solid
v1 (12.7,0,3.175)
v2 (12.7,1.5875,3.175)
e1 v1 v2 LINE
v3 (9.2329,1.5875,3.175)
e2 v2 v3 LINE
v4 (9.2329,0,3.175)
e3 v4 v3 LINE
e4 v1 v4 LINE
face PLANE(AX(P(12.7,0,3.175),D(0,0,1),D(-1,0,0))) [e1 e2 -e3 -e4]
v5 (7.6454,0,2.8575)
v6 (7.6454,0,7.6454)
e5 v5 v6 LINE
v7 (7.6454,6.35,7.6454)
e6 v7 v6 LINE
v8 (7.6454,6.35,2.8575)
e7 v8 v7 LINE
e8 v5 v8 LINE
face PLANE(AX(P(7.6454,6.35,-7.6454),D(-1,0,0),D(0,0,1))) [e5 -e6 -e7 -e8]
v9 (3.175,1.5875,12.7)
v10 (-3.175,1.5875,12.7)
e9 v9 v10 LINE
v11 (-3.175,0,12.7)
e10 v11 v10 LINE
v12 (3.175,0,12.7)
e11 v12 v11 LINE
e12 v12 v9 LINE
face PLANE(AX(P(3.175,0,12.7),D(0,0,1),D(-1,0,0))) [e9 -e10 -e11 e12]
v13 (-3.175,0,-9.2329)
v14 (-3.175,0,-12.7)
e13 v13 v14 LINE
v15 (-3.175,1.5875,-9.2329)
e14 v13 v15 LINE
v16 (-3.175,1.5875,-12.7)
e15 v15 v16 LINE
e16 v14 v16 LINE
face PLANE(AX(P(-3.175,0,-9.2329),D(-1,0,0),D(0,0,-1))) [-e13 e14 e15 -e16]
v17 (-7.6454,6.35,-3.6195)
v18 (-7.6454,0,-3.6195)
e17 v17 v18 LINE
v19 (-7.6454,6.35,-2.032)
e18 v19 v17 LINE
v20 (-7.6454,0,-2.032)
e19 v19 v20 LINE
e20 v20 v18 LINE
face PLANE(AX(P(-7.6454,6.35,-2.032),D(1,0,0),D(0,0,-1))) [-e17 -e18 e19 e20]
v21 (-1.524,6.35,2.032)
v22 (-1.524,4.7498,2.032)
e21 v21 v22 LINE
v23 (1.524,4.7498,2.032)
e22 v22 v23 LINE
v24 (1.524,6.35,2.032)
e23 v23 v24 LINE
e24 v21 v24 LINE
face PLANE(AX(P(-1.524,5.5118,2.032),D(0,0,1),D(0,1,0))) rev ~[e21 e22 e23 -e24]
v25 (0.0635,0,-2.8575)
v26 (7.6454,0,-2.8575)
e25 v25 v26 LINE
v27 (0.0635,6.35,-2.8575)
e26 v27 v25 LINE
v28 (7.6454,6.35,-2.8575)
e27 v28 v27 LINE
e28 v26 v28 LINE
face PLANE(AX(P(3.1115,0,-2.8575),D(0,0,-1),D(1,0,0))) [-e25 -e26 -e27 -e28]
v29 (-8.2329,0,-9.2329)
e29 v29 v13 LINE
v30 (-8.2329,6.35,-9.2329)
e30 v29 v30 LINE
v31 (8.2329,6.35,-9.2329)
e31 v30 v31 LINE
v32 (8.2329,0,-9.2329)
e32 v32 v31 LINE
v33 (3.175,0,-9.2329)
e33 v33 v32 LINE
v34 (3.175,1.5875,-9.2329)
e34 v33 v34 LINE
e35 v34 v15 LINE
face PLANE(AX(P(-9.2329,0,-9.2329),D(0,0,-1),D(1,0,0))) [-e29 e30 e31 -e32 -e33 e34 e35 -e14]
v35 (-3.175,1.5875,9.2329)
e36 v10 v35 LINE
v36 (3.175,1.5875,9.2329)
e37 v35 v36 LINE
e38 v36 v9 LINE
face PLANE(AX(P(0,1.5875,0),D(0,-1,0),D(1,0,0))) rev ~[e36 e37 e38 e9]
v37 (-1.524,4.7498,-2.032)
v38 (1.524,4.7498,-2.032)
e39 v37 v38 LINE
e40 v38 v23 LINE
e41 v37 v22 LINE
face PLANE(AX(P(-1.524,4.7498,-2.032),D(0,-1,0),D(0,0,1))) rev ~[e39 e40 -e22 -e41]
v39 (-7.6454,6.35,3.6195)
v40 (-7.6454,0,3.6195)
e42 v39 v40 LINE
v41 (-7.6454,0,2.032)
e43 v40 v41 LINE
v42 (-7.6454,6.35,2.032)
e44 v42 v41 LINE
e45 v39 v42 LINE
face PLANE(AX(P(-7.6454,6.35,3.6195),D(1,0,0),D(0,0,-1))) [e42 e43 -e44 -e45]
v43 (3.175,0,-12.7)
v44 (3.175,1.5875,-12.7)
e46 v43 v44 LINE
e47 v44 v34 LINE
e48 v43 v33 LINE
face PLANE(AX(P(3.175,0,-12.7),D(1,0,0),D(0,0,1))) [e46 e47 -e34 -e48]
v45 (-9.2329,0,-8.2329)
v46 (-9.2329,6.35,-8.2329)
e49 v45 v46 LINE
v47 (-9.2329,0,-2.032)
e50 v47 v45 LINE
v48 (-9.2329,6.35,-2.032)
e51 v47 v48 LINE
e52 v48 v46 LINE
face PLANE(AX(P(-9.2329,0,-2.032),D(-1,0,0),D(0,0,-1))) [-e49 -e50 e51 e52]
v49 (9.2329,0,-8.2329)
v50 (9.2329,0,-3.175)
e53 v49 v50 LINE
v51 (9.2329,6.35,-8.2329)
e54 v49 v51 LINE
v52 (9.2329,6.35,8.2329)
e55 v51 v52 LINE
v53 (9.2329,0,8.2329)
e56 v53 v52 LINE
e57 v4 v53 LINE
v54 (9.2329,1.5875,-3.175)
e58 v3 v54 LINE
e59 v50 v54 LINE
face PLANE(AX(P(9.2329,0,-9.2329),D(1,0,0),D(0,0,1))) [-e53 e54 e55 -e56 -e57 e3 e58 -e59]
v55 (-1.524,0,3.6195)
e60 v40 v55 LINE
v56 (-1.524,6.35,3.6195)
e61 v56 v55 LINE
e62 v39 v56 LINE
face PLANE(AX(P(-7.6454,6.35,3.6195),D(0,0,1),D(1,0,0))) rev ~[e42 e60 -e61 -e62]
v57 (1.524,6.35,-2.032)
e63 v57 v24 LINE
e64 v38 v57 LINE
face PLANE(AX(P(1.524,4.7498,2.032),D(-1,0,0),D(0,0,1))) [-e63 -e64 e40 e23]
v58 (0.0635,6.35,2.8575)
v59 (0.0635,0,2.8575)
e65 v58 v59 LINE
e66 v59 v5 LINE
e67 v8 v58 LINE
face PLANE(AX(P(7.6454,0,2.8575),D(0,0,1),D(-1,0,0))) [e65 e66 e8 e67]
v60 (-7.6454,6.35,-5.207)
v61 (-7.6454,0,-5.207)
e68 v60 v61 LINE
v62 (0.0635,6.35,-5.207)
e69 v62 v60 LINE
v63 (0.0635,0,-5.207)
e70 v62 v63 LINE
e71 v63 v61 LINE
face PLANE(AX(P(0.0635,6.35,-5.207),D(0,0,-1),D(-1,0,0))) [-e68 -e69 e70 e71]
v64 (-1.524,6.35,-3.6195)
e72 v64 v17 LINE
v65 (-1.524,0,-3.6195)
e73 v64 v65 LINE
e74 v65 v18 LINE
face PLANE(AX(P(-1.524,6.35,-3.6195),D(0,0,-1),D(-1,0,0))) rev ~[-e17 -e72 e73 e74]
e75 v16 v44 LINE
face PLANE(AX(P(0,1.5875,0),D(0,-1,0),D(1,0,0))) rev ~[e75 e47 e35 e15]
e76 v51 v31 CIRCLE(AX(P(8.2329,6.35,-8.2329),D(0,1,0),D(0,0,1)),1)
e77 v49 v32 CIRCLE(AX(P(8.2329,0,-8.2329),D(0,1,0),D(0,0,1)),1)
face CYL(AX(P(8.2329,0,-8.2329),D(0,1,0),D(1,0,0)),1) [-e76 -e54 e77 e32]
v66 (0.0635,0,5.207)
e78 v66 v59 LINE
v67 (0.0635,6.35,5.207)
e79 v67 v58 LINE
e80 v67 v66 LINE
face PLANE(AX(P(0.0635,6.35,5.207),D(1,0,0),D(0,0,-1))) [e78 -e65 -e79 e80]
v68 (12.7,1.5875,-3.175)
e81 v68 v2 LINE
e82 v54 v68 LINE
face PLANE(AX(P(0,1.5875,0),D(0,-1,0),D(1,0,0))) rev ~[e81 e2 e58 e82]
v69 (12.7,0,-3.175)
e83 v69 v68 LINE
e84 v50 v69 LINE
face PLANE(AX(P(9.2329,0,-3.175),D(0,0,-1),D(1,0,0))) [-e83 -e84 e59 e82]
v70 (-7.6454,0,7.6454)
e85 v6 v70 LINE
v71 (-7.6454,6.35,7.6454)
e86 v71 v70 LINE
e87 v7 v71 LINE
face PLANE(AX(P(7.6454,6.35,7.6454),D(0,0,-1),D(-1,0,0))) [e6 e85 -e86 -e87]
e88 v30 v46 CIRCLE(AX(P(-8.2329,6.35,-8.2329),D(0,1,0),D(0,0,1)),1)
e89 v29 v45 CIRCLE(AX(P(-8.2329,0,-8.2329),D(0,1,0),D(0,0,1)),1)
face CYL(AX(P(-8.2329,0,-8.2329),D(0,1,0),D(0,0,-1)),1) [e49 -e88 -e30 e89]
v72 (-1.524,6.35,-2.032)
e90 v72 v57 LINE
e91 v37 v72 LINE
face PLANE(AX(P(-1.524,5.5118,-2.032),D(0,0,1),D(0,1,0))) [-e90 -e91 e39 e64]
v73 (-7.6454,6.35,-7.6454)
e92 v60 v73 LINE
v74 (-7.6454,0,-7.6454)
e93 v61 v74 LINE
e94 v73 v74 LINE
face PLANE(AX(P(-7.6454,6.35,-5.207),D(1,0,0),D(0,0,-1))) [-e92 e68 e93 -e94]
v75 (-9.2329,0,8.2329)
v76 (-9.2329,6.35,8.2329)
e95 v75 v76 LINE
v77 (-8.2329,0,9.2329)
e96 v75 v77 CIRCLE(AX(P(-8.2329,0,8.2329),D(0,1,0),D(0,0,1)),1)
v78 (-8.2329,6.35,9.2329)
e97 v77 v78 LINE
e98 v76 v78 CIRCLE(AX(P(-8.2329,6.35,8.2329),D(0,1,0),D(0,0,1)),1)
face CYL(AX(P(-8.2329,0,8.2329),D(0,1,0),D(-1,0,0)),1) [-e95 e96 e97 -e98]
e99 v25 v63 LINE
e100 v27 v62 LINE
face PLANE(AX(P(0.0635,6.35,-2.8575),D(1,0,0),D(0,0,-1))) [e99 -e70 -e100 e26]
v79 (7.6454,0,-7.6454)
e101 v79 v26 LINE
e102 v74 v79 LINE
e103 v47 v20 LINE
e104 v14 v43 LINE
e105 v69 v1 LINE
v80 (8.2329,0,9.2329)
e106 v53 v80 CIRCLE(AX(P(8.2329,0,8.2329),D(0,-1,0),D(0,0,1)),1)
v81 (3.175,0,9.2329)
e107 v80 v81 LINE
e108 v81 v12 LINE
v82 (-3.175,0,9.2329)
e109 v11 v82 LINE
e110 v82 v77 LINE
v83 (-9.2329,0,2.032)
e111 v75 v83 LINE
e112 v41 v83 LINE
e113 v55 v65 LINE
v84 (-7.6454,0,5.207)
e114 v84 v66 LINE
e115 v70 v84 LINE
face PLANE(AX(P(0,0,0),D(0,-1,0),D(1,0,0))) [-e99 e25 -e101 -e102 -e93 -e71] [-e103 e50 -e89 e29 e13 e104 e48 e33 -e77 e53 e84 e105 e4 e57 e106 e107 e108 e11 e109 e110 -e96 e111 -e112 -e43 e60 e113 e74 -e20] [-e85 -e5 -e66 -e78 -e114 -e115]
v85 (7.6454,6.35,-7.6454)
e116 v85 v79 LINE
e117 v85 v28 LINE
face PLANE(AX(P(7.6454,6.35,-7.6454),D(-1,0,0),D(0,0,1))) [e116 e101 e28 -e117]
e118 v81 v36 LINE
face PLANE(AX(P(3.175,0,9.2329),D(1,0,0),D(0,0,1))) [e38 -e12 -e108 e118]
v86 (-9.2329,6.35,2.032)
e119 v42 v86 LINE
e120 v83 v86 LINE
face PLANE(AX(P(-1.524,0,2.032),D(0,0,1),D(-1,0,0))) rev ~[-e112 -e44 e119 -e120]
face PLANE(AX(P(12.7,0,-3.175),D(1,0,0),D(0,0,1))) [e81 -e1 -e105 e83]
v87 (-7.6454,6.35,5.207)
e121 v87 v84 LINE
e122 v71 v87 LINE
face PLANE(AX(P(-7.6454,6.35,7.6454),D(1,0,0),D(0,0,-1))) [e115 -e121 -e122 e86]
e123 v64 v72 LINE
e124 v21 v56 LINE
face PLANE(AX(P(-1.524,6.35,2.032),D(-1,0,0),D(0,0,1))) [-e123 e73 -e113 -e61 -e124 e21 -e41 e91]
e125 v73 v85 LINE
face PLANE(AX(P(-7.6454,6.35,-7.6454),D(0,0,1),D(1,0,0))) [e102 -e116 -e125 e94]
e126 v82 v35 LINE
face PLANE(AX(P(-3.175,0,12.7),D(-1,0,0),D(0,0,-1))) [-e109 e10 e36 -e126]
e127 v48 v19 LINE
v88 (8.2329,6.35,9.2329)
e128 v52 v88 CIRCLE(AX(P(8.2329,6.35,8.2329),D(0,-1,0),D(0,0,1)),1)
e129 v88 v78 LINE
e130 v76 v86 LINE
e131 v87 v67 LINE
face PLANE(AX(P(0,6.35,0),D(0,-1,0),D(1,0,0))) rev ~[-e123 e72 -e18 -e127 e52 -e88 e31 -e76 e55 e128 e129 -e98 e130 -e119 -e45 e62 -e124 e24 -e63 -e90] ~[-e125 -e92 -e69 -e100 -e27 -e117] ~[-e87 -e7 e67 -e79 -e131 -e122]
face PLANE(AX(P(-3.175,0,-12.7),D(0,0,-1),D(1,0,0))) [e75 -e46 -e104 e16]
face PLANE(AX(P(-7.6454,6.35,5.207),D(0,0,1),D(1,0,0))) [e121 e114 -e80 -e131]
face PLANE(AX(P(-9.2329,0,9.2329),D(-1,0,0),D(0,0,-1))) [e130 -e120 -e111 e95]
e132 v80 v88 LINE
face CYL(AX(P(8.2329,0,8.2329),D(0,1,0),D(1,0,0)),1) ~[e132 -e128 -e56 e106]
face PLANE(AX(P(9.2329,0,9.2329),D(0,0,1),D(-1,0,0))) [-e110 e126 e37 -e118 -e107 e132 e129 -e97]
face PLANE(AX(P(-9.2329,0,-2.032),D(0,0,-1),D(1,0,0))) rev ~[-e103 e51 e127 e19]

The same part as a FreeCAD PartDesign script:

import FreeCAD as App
import Part
import Sketcher
Q = App.Units.Quantity


def edges_at(feature, points):
    """Names of the edges that pass closest to the given points."""
    edges = feature.Shape.Edges
    near = lambda p: min(range(len(edges)), key=lambda i: edges[i].distToShape(Part.Vertex(*p))[0])
    return sorted({f"Edge{near(p) + 1}" for p in points})

doc = App.newDocument("Part")
body = doc.addObject("PartDesign::Body", "Body")

# Sketch on XZ plane
sketch1 = doc.addObject("Sketcher::SketchObject", "Sketch")
body.addObject(sketch1)
sketch1.AttachmentSupport = (doc.XZ_Plane, [""])
sketch1.MapMode = "FlatFace"
sketch1.addGeometry(Part.LineSegment(App.Vector(-9.2, 9.2, 0), App.Vector(9.2, 9.2, 0)), False)
sketch1.addGeometry(Part.LineSegment(App.Vector(9.2, 9.2, 0), App.Vector(9.2, -9.2, 0)), False)
sketch1.addGeometry(Part.LineSegment(App.Vector(9.2, -9.2, 0), App.Vector(-9.2, -9.2, 0)), False)
sketch1.addGeometry(Part.LineSegment(App.Vector(-9.2, -9.2, 0), App.Vector(-9.2, -2, 0)), False)
sketch1.addGeometry(Part.LineSegment(App.Vector(-9.2, -2, 0), App.Vector(-1.5, -2, 0)), False)
sketch1.addGeometry(Part.LineSegment(App.Vector(-1.5, -2, 0), App.Vector(-1.5, 2, 0)), False)
sketch1.addGeometry(Part.LineSegment(App.Vector(-1.5, 2, 0), App.Vector(-9.2, 2, 0)), False)
sketch1.addGeometry(Part.LineSegment(App.Vector(-9.2, 2, 0), App.Vector(-9.2, 9.2, 0)), False)
sketch1.addConstraint(Sketcher.Constraint("Coincident", 0, 2, 1, 1))
sketch1.addConstraint(Sketcher.Constraint("Coincident", 1, 2, 2, 1))
sketch1.addConstraint(Sketcher.Constraint("Coincident", 2, 2, 3, 1))
sketch1.addConstraint(Sketcher.Constraint("Coincident", 3, 2, 4, 1))
sketch1.addConstraint(Sketcher.Constraint("Coincident", 4, 2, 5, 1))
sketch1.addConstraint(Sketcher.Constraint("Coincident", 5, 2, 6, 1))
sketch1.addConstraint(Sketcher.Constraint("Coincident", 6, 2, 7, 1))
sketch1.addConstraint(Sketcher.Constraint("Coincident", 7, 2, 0, 1))
sketch1.addConstraint(Sketcher.Constraint("Horizontal", 0))
sketch1.addConstraint(Sketcher.Constraint("Vertical", 1))
sketch1.addConstraint(Sketcher.Constraint("Horizontal", 2))
sketch1.addConstraint(Sketcher.Constraint("Vertical", 3))
sketch1.addConstraint(Sketcher.Constraint("Horizontal", 4))
sketch1.addConstraint(Sketcher.Constraint("Vertical", 5))
sketch1.addConstraint(Sketcher.Constraint("Horizontal", 6))
sketch1.addConstraint(Sketcher.Constraint("Vertical", 7))
sketch1.addConstraint(Sketcher.Constraint("Symmetric", 0, 2, 2, 2, -1, 1))
sketch1.addConstraint(Sketcher.Constraint("Symmetric", 3, 2, 6, 2, -1))
sketch1.addConstraint(Sketcher.Constraint("Equal", 2, 1))
sketch1.addConstraint(Sketcher.Constraint("DistanceY", 5, 1, 5, 2, Q("0.16 in")))
sketch1.addConstraint(Sketcher.Constraint("DistanceX", 0, 1, 0, 2, Q("0.727 in")))
sketch1.addConstraint(Sketcher.Constraint("DistanceX", 4, 2, -1, 1, Q("0.06 in")))
pad1 = doc.addObject("PartDesign::Pad", "Pad")
body.addObject(pad1)
pad1.Profile = sketch1
pad1.Length = Q("0.25 in")
pad1.Reversed = True

# Sketch on YZ plane
sketch2 = doc.addObject("Sketcher::SketchObject", "Sketch001")
body.addObject(sketch2)
sketch2.AttachmentSupport = (doc.YZ_Plane, [""])
sketch2.MapMode = "FlatFace"
sketch2.AttachmentOffset = App.Placement(App.Vector(0, 0, -0.06 * 25.4), App.Rotation())
sketch2.addGeometry(Part.LineSegment(App.Vector(5.5, -2, 0), App.Vector(4.7, -2, 0)), False)
sketch2.addGeometry(Part.LineSegment(App.Vector(4.7, -2, 0), App.Vector(4.7, 2, 0)), False)
sketch2.addGeometry(Part.LineSegment(App.Vector(4.7, 2, 0), App.Vector(5.5, 2, 0)), False)
sketch2.addGeometry(Part.LineSegment(App.Vector(5.5, 2, 0), App.Vector(6.3, 1.3, 0)), False)
sketch2.addGeometry(Part.LineSegment(App.Vector(6.3, 1.3, 0), App.Vector(6.3, -1.3, 0)), False)
sketch2.addGeometry(Part.LineSegment(App.Vector(6.3, -1.3, 0), App.Vector(5.5, -2, 0)), False)
sketch2.addConstraint(Sketcher.Constraint("Coincident", 0, 2, 1, 1))
sketch2.addConstraint(Sketcher.Constraint("Coincident", 1, 2, 2, 1))
sketch2.addConstraint(Sketcher.Constraint("Coincident", 2, 2, 3, 1))
sketch2.addConstraint(Sketcher.Constraint("Coincident", 3, 2, 4, 1))
sketch2.addConstraint(Sketcher.Constraint("Coincident", 4, 2, 5, 1))
sketch2.addConstraint(Sketcher.Constraint("Coincident", 5, 2, 0, 1))
sketch2.addConstraint(Sketcher.Constraint("Horizontal", 0))
sketch2.addConstraint(Sketcher.Constraint("Vertical", 1))
sketch2.addConstraint(Sketcher.Constraint("Horizontal", 2))
sketch2.addConstraint(Sketcher.Constraint("Vertical", 4))
sketch2.addConstraint(Sketcher.Constraint("Symmetric", 2, 2, 5, 2, -1))
sketch2.addConstraint(Sketcher.Constraint("Equal", 3, 5))
sketch2.addConstraint(Sketcher.Constraint("DistanceY", 4, 2, 4, 1, Q("0.1 in")))
sketch2.addConstraint(Sketcher.Constraint("DistanceX", 0, 2, 0, 1, Q("0.03 in")))
sketch2.addConstraint(Sketcher.Constraint("DistanceY", 3, 2, 2, 2, Q("0.03 in")))
sketch2.addConstraint(Sketcher.Constraint("DistanceX", 1, 2, 3, 2, Q("0.063 in")))
sketch2.addConstraint(Sketcher.Constraint("DistanceX", -1, 1, 3, 2, Q("0.25 in")))
pocket1 = doc.addObject("PartDesign::Pocket", "Pocket")
body.addObject(pocket1)
pocket1.Profile = sketch2
pocket1.Length = Q("0.12 in")
pocket1.Reversed = True

# Sketch on XZ plane
sketch3 = doc.addObject("Sketcher::SketchObject", "Sketch002")
body.addObject(sketch3)
sketch3.AttachmentSupport = (doc.XZ_Plane, [""])
sketch3.MapMode = "FlatFace"
sketch3.AttachmentOffset = App.Placement(App.Vector(0, 0, -0.25 * 25.4), App.Rotation())
sketch3.addGeometry(Part.LineSegment(App.Vector(-1.5, 3.6, 0), App.Vector(-1.5, 2, 0)), False)
sketch3.addGeometry(Part.LineSegment(App.Vector(-1.5, 2, 0), App.Vector(-7.6, 2, 0)), False)
sketch3.addGeometry(Part.LineSegment(App.Vector(-7.6, 2, 0), App.Vector(-7.6, 3.6, 0)), False)
sketch3.addGeometry(Part.LineSegment(App.Vector(-7.6, 3.6, 0), App.Vector(-1.5, 3.6, 0)), False)
sketch3.addGeometry(Part.LineSegment(App.Vector(-7.6, -2, 0), App.Vector(-1.5, -2, 0)), False)
sketch3.addGeometry(Part.LineSegment(App.Vector(-1.5, -2, 0), App.Vector(-1.5, -3.6, 0)), False)
sketch3.addGeometry(Part.LineSegment(App.Vector(-1.5, -3.6, 0), App.Vector(-7.6, -3.6, 0)), False)
sketch3.addGeometry(Part.LineSegment(App.Vector(-7.6, -3.6, 0), App.Vector(-7.6, -2, 0)), False)
sketch3.addConstraint(Sketcher.Constraint("Coincident", 0, 2, 1, 1))
sketch3.addConstraint(Sketcher.Constraint("Coincident", 1, 2, 2, 1))
sketch3.addConstraint(Sketcher.Constraint("Coincident", 2, 2, 3, 1))
sketch3.addConstraint(Sketcher.Constraint("Coincident", 3, 2, 0, 1))
sketch3.addConstraint(Sketcher.Constraint("Coincident", 4, 2, 5, 1))
sketch3.addConstraint(Sketcher.Constraint("Coincident", 5, 2, 6, 1))
sketch3.addConstraint(Sketcher.Constraint("Coincident", 6, 2, 7, 1))
sketch3.addConstraint(Sketcher.Constraint("Coincident", 7, 2, 4, 1))
sketch3.addConstraint(Sketcher.Constraint("Vertical", 0))
sketch3.addConstraint(Sketcher.Constraint("Horizontal", 1))
sketch3.addConstraint(Sketcher.Constraint("Vertical", 2))
sketch3.addConstraint(Sketcher.Constraint("Horizontal", 3))
sketch3.addConstraint(Sketcher.Constraint("Horizontal", 4))
sketch3.addConstraint(Sketcher.Constraint("Vertical", 5))
sketch3.addConstraint(Sketcher.Constraint("Horizontal", 6))
sketch3.addConstraint(Sketcher.Constraint("Vertical", 7))
sketch3.addConstraint(Sketcher.Constraint("Symmetric", 0, 2, 4, 2, -1))
sketch3.addConstraint(Sketcher.Constraint("Symmetric", 2, 2, 6, 2, -1))
sketch3.addConstraint(Sketcher.Constraint("DistanceY", 0, 2, 0, 1, Q("0.0625 in")))
sketch3.addConstraint(Sketcher.Constraint("DistanceX", 1, 2, 1, 1, Q("0.241 in")))
sketch3.addConstraint(Sketcher.Constraint("DistanceX", 0, 2, -1, 1, Q("0.06 in")))
sketch3.addConstraint(Sketcher.Constraint("DistanceY", -1, 1, 0, 2, Q("0.08 in")))
pocket2 = doc.addObject("PartDesign::Pocket", "Pocket001")
body.addObject(pocket2)
pocket2.Profile = sketch3
pocket2.Type = "ThroughAll"
pocket2.Reversed = True

# Sketch on XZ plane
sketch4 = doc.addObject("Sketcher::SketchObject", "Sketch003")
body.addObject(sketch4)
sketch4.AttachmentSupport = (doc.XZ_Plane, [""])
sketch4.MapMode = "FlatFace"
sketch4.AttachmentOffset = App.Placement(App.Vector(0, 0, -0.25 * 25.4), App.Rotation())
sketch4.addGeometry(Part.LineSegment(App.Vector(7.6, -7.6, 0), App.Vector(-7.6, -7.6, 0)), False)
sketch4.addGeometry(Part.LineSegment(App.Vector(-7.6, -7.6, 0), App.Vector(-7.6, -5.2, 0)), False)
sketch4.addGeometry(Part.LineSegment(App.Vector(-7.6, -5.2, 0), App.Vector(0.1, -5.2, 0)), False)
sketch4.addGeometry(Part.LineSegment(App.Vector(0.1, -5.2, 0), App.Vector(0.1, -2.9, 0)), False)
sketch4.addGeometry(Part.LineSegment(App.Vector(0.1, -2.9, 0), App.Vector(3.1, -2.9, 0)), False)
sketch4.addGeometry(Part.LineSegment(App.Vector(3.1, -2.9, 0), App.Vector(3.1, 2.9, 0)), False)
sketch4.addGeometry(Part.LineSegment(App.Vector(3.1, 2.9, 0), App.Vector(0.1, 2.9, 0)), False)
sketch4.addGeometry(Part.LineSegment(App.Vector(0.1, 2.9, 0), App.Vector(0.1, 5.2, 0)), False)
sketch4.addGeometry(Part.LineSegment(App.Vector(0.1, 5.2, 0), App.Vector(-7.6, 5.2, 0)), False)
sketch4.addGeometry(Part.LineSegment(App.Vector(-7.6, 5.2, 0), App.Vector(-7.6, 7.6, 0)), False)
sketch4.addGeometry(Part.LineSegment(App.Vector(-7.6, 7.6, 0), App.Vector(7.6, 7.6, 0)), False)
sketch4.addGeometry(Part.LineSegment(App.Vector(7.6, 7.6, 0), App.Vector(7.6, -7.6, 0)), False)
sketch4.addConstraint(Sketcher.Constraint("Coincident", 0, 2, 1, 1))
sketch4.addConstraint(Sketcher.Constraint("Coincident", 1, 2, 2, 1))
sketch4.addConstraint(Sketcher.Constraint("Coincident", 2, 2, 3, 1))
sketch4.addConstraint(Sketcher.Constraint("Coincident", 3, 2, 4, 1))
sketch4.addConstraint(Sketcher.Constraint("Coincident", 4, 2, 5, 1))
sketch4.addConstraint(Sketcher.Constraint("Coincident", 5, 2, 6, 1))
sketch4.addConstraint(Sketcher.Constraint("Coincident", 6, 2, 7, 1))
sketch4.addConstraint(Sketcher.Constraint("Coincident", 7, 2, 8, 1))
sketch4.addConstraint(Sketcher.Constraint("Coincident", 8, 2, 9, 1))
sketch4.addConstraint(Sketcher.Constraint("Coincident", 9, 2, 10, 1))
sketch4.addConstraint(Sketcher.Constraint("Coincident", 10, 2, 11, 1))
sketch4.addConstraint(Sketcher.Constraint("Coincident", 11, 2, 0, 1))
sketch4.addConstraint(Sketcher.Constraint("Horizontal", 0))
sketch4.addConstraint(Sketcher.Constraint("Vertical", 1))
sketch4.addConstraint(Sketcher.Constraint("Horizontal", 2))
sketch4.addConstraint(Sketcher.Constraint("Vertical", 3))
sketch4.addConstraint(Sketcher.Constraint("Horizontal", 4))
sketch4.addConstraint(Sketcher.Constraint("Vertical", 5))
sketch4.addConstraint(Sketcher.Constraint("Horizontal", 6))
sketch4.addConstraint(Sketcher.Constraint("Vertical", 7))
sketch4.addConstraint(Sketcher.Constraint("Horizontal", 8))
sketch4.addConstraint(Sketcher.Constraint("Vertical", 9))
sketch4.addConstraint(Sketcher.Constraint("Horizontal", 10))
sketch4.addConstraint(Sketcher.Constraint("Vertical", 11))
sketch4.addConstraint(Sketcher.Constraint("Symmetric", 0, 2, 10, 2, -1, 1))
sketch4.addConstraint(Sketcher.Constraint("Symmetric", 3, 2, 6, 2, -1))
sketch4.addConstraint(Sketcher.Constraint("Symmetric", 1, 2, 8, 2, -1))
sketch4.addConstraint(Sketcher.Constraint("Equal", 10, 11))
sketch4.addConstraint(Sketcher.Constraint("DistanceX", 4, 1, 4, 2, Q("0.12 in")))
sketch4.addConstraint(Sketcher.Constraint("DistanceX", 0, 2, 0, 1, Q("0.602 in")))
sketch4.addConstraint(Sketcher.Constraint("DistanceY", 1, 1, 1, 2, Q("0.096 in")))
sketch4.addConstraint(Sketcher.Constraint("DistanceY", 5, 1, 5, 2, Q("0.225 in")))
sketch4.addConstraint(Sketcher.Constraint("DistanceX", 2, 1, 2, 2, Q("0.3035 in")))
pocket3 = doc.addObject("PartDesign::Pocket", "Pocket002")
body.addObject(pocket3)
pocket3.Profile = sketch4
pocket3.Type = "ThroughAll"
pocket3.Reversed = True

# Sketch on XZ plane
sketch5 = doc.addObject("Sketcher::SketchObject", "Sketch004")
body.addObject(sketch5)
sketch5.AttachmentSupport = (doc.XZ_Plane, [""])
sketch5.MapMode = "FlatFace"
sketch5.addGeometry(Part.LineSegment(App.Vector(-3.2, -9.2, 0), App.Vector(-3.2, -12.7, 0)), False)
sketch5.addGeometry(Part.LineSegment(App.Vector(-3.2, -12.7, 0), App.Vector(3.2, -12.7, 0)), False)
sketch5.addGeometry(Part.LineSegment(App.Vector(3.2, -12.7, 0), App.Vector(3.2, -9.2, 0)), False)
sketch5.addGeometry(Part.LineSegment(App.Vector(3.2, -9.2, 0), App.Vector(-3.2, -9.2, 0)), False)
sketch5.addGeometry(Part.LineSegment(App.Vector(9.2, 3.2, 0), App.Vector(9.2, -3.2, 0)), False)
sketch5.addGeometry(Part.LineSegment(App.Vector(9.2, -3.2, 0), App.Vector(12.7, -3.2, 0)), False)
sketch5.addGeometry(Part.LineSegment(App.Vector(12.7, -3.2, 0), App.Vector(12.7, 3.2, 0)), False)
sketch5.addGeometry(Part.LineSegment(App.Vector(12.7, 3.2, 0), App.Vector(9.2, 3.2, 0)), False)
sketch5.addGeometry(Part.LineSegment(App.Vector(-3.2, 9.2, 0), App.Vector(3.2, 9.2, 0)), False)
sketch5.addGeometry(Part.LineSegment(App.Vector(3.2, 9.2, 0), App.Vector(3.2, 12.7, 0)), False)
sketch5.addGeometry(Part.LineSegment(App.Vector(3.2, 12.7, 0), App.Vector(-3.2, 12.7, 0)), False)
sketch5.addGeometry(Part.LineSegment(App.Vector(-3.2, 12.7, 0), App.Vector(-3.2, 9.2, 0)), False)
sketch5.addConstraint(Sketcher.Constraint("Coincident", 0, 2, 1, 1))
sketch5.addConstraint(Sketcher.Constraint("Coincident", 1, 2, 2, 1))
sketch5.addConstraint(Sketcher.Constraint("Coincident", 2, 2, 3, 1))
sketch5.addConstraint(Sketcher.Constraint("Coincident", 3, 2, 0, 1))
sketch5.addConstraint(Sketcher.Constraint("Coincident", 4, 2, 5, 1))
sketch5.addConstraint(Sketcher.Constraint("Coincident", 5, 2, 6, 1))
sketch5.addConstraint(Sketcher.Constraint("Coincident", 6, 2, 7, 1))
sketch5.addConstraint(Sketcher.Constraint("Coincident", 7, 2, 4, 1))
sketch5.addConstraint(Sketcher.Constraint("Coincident", 8, 2, 9, 1))
sketch5.addConstraint(Sketcher.Constraint("Coincident", 9, 2, 10, 1))
sketch5.addConstraint(Sketcher.Constraint("Coincident", 10, 2, 11, 1))
sketch5.addConstraint(Sketcher.Constraint("Coincident", 11, 2, 8, 1))
sketch5.addConstraint(Sketcher.Constraint("Vertical", 0))
sketch5.addConstraint(Sketcher.Constraint("Horizontal", 1))
sketch5.addConstraint(Sketcher.Constraint("Vertical", 2))
sketch5.addConstraint(Sketcher.Constraint("Horizontal", 3))
sketch5.addConstraint(Sketcher.Constraint("Vertical", 4))
sketch5.addConstraint(Sketcher.Constraint("Horizontal", 5))
sketch5.addConstraint(Sketcher.Constraint("Vertical", 6))
sketch5.addConstraint(Sketcher.Constraint("Horizontal", 7))
sketch5.addConstraint(Sketcher.Constraint("Horizontal", 8))
sketch5.addConstraint(Sketcher.Constraint("Vertical", 9))
sketch5.addConstraint(Sketcher.Constraint("Horizontal", 10))
sketch5.addConstraint(Sketcher.Constraint("Vertical", 11))
sketch5.addConstraint(Sketcher.Constraint("Symmetric", 3, 2, 8, 2, -1, 1))
sketch5.addConstraint(Sketcher.Constraint("Symmetric", 1, 2, 10, 2, -1, 1))
sketch5.addConstraint(Sketcher.Constraint("Vertical", 2, 2, 8, 2))
sketch5.addConstraint(Sketcher.Constraint("Equal", 7, 0))
sketch5.addConstraint(Sketcher.Constraint("Equal", 10, 4))
sketch5.addConstraint(Sketcher.Constraint("DistanceX", 1, 1, 1, 2, Q("0.25 in")))
sketch5.addConstraint(Sketcher.Constraint("DistanceY", 0, 2, -1, 1, Q("0.5 in")))
sketch5.addConstraint(Sketcher.Constraint("DistanceX", -1, 1, 5, 2, Q("0.5 in")))
sketch5.addConstraint(Sketcher.Constraint("DistanceX", 5, 1, 5, 2, Q("0.1365 in")))
sketch5.addConstraint(Sketcher.Constraint("DistanceY", 4, 2, -1, 1, Q("0.125 in")))
pad2 = doc.addObject("PartDesign::Pad", "Pad001")
body.addObject(pad2)
pad2.Profile = sketch5
pad2.Length = Q("0.0625 in")
pad2.Reversed = True

# Sketch on XZ plane
sketch6 = doc.addObject("Sketcher::SketchObject", "Sketch005")
body.addObject(sketch6)
sketch6.AttachmentSupport = (doc.XZ_Plane, [""])
sketch6.MapMode = "FlatFace"
sketch6.addGeometry(Part.LineSegment(App.Vector(3.1, 2.9, 0), App.Vector(3.1, -2.9, 0)), False)
sketch6.addGeometry(Part.LineSegment(App.Vector(3.1, -2.9, 0), App.Vector(7.6, -2.9, 0)), False)
sketch6.addGeometry(Part.LineSegment(App.Vector(7.6, -2.9, 0), App.Vector(7.6, 2.9, 0)), False)
sketch6.addGeometry(Part.LineSegment(App.Vector(7.6, 2.9, 0), App.Vector(3.1, 2.9, 0)), False)
sketch6.addConstraint(Sketcher.Constraint("Coincident", 0, 2, 1, 1))
sketch6.addConstraint(Sketcher.Constraint("Coincident", 1, 2, 2, 1))
sketch6.addConstraint(Sketcher.Constraint("Coincident", 2, 2, 3, 1))
sketch6.addConstraint(Sketcher.Constraint("Coincident", 3, 2, 0, 1))
sketch6.addConstraint(Sketcher.Constraint("Vertical", 0))
sketch6.addConstraint(Sketcher.Constraint("Horizontal", 1))
sketch6.addConstraint(Sketcher.Constraint("Vertical", 2))
sketch6.addConstraint(Sketcher.Constraint("Horizontal", 3))
sketch6.addConstraint(Sketcher.Constraint("DistanceY", 0, 2, 0, 1, Q("0.225 in")))
sketch6.addConstraint(Sketcher.Constraint("DistanceX", 1, 1, 1, 2, Q("0.1785 in")))
sketch6.addConstraint(Sketcher.Constraint("DistanceX", -1, 1, 1, 2, Q("0.301 in")))
sketch6.addConstraint(Sketcher.Constraint("DistanceY", 0, 2, -1, 1, Q("0.1125 in")))
pad3 = doc.addObject("PartDesign::Pad", "Pad002")
body.addObject(pad3)
pad3.Profile = sketch6
pad3.Length = Q("0.25 in")
pad3.Reversed = True

# Sketch on YZ plane
sketch7 = doc.addObject("Sketcher::SketchObject", "Sketch006")
body.addObject(sketch7)
sketch7.AttachmentSupport = (doc.YZ_Plane, [""])
sketch7.MapMode = "FlatFace"
sketch7.AttachmentOffset = App.Placement(App.Vector(0, 0, -0.06 * 25.4), App.Rotation())
sketch7.addGeometry(Part.LineSegment(App.Vector(6.3, 2, 0), App.Vector(6.3, 1.3, 0)), False)
sketch7.addGeometry(Part.LineSegment(App.Vector(6.3, 1.3, 0), App.Vector(5.5, 2, 0)), False)
sketch7.addGeometry(Part.LineSegment(App.Vector(5.5, 2, 0), App.Vector(6.3, 2, 0)), False)
sketch7.addGeometry(Part.LineSegment(App.Vector(6.3, -2, 0), App.Vector(5.5, -2, 0)), False)
sketch7.addGeometry(Part.LineSegment(App.Vector(5.5, -2, 0), App.Vector(6.3, -1.3, 0)), False)
sketch7.addGeometry(Part.LineSegment(App.Vector(6.3, -1.3, 0), App.Vector(6.3, -2, 0)), False)
sketch7.addConstraint(Sketcher.Constraint("Coincident", 0, 2, 1, 1))
sketch7.addConstraint(Sketcher.Constraint("Coincident", 1, 2, 2, 1))
sketch7.addConstraint(Sketcher.Constraint("Coincident", 2, 2, 0, 1))
sketch7.addConstraint(Sketcher.Constraint("Coincident", 3, 2, 4, 1))
sketch7.addConstraint(Sketcher.Constraint("Coincident", 4, 2, 5, 1))
sketch7.addConstraint(Sketcher.Constraint("Coincident", 5, 2, 3, 1))
sketch7.addConstraint(Sketcher.Constraint("Vertical", 0))
sketch7.addConstraint(Sketcher.Constraint("Horizontal", 2))
sketch7.addConstraint(Sketcher.Constraint("Horizontal", 3))
sketch7.addConstraint(Sketcher.Constraint("Vertical", 5))
sketch7.addConstraint(Sketcher.Constraint("Symmetric", 1, 2, 3, 2, -1))
sketch7.addConstraint(Sketcher.Constraint("Symmetric", 0, 2, 4, 2, -1))
sketch7.addConstraint(Sketcher.Constraint("DistanceY", 0, 2, 0, 1, Q("0.03 in")))
sketch7.addConstraint(Sketcher.Constraint("DistanceY", 4, 2, 0, 2, Q("0.1 in")))
sketch7.addConstraint(Sketcher.Constraint("DistanceX", 2, 1, 2, 2, Q("0.033 in")))
sketch7.addConstraint(Sketcher.Constraint("DistanceX", -1, 1, 0, 2, Q("0.25 in")))
pocket4 = doc.addObject("PartDesign::Pocket", "Pocket003")
body.addObject(pocket4)
pocket4.Profile = sketch7
pocket4.Length = Q("0.12 in")
pocket4.Reversed = True
doc.recompute()

fillet = doc.addObject("PartDesign::Fillet", "Fillet")
body.addObject(fillet)
fillet.Base = (pocket4, edges_at(pocket4, [
    (-9.233, 3.175, -9.233),
    (-9.233, 3.175, 9.233),
    (9.233, 3.175, 9.233),
    (9.233, 3.175, -9.233),
]))
fillet.Radius = 1

doc.recompute()
